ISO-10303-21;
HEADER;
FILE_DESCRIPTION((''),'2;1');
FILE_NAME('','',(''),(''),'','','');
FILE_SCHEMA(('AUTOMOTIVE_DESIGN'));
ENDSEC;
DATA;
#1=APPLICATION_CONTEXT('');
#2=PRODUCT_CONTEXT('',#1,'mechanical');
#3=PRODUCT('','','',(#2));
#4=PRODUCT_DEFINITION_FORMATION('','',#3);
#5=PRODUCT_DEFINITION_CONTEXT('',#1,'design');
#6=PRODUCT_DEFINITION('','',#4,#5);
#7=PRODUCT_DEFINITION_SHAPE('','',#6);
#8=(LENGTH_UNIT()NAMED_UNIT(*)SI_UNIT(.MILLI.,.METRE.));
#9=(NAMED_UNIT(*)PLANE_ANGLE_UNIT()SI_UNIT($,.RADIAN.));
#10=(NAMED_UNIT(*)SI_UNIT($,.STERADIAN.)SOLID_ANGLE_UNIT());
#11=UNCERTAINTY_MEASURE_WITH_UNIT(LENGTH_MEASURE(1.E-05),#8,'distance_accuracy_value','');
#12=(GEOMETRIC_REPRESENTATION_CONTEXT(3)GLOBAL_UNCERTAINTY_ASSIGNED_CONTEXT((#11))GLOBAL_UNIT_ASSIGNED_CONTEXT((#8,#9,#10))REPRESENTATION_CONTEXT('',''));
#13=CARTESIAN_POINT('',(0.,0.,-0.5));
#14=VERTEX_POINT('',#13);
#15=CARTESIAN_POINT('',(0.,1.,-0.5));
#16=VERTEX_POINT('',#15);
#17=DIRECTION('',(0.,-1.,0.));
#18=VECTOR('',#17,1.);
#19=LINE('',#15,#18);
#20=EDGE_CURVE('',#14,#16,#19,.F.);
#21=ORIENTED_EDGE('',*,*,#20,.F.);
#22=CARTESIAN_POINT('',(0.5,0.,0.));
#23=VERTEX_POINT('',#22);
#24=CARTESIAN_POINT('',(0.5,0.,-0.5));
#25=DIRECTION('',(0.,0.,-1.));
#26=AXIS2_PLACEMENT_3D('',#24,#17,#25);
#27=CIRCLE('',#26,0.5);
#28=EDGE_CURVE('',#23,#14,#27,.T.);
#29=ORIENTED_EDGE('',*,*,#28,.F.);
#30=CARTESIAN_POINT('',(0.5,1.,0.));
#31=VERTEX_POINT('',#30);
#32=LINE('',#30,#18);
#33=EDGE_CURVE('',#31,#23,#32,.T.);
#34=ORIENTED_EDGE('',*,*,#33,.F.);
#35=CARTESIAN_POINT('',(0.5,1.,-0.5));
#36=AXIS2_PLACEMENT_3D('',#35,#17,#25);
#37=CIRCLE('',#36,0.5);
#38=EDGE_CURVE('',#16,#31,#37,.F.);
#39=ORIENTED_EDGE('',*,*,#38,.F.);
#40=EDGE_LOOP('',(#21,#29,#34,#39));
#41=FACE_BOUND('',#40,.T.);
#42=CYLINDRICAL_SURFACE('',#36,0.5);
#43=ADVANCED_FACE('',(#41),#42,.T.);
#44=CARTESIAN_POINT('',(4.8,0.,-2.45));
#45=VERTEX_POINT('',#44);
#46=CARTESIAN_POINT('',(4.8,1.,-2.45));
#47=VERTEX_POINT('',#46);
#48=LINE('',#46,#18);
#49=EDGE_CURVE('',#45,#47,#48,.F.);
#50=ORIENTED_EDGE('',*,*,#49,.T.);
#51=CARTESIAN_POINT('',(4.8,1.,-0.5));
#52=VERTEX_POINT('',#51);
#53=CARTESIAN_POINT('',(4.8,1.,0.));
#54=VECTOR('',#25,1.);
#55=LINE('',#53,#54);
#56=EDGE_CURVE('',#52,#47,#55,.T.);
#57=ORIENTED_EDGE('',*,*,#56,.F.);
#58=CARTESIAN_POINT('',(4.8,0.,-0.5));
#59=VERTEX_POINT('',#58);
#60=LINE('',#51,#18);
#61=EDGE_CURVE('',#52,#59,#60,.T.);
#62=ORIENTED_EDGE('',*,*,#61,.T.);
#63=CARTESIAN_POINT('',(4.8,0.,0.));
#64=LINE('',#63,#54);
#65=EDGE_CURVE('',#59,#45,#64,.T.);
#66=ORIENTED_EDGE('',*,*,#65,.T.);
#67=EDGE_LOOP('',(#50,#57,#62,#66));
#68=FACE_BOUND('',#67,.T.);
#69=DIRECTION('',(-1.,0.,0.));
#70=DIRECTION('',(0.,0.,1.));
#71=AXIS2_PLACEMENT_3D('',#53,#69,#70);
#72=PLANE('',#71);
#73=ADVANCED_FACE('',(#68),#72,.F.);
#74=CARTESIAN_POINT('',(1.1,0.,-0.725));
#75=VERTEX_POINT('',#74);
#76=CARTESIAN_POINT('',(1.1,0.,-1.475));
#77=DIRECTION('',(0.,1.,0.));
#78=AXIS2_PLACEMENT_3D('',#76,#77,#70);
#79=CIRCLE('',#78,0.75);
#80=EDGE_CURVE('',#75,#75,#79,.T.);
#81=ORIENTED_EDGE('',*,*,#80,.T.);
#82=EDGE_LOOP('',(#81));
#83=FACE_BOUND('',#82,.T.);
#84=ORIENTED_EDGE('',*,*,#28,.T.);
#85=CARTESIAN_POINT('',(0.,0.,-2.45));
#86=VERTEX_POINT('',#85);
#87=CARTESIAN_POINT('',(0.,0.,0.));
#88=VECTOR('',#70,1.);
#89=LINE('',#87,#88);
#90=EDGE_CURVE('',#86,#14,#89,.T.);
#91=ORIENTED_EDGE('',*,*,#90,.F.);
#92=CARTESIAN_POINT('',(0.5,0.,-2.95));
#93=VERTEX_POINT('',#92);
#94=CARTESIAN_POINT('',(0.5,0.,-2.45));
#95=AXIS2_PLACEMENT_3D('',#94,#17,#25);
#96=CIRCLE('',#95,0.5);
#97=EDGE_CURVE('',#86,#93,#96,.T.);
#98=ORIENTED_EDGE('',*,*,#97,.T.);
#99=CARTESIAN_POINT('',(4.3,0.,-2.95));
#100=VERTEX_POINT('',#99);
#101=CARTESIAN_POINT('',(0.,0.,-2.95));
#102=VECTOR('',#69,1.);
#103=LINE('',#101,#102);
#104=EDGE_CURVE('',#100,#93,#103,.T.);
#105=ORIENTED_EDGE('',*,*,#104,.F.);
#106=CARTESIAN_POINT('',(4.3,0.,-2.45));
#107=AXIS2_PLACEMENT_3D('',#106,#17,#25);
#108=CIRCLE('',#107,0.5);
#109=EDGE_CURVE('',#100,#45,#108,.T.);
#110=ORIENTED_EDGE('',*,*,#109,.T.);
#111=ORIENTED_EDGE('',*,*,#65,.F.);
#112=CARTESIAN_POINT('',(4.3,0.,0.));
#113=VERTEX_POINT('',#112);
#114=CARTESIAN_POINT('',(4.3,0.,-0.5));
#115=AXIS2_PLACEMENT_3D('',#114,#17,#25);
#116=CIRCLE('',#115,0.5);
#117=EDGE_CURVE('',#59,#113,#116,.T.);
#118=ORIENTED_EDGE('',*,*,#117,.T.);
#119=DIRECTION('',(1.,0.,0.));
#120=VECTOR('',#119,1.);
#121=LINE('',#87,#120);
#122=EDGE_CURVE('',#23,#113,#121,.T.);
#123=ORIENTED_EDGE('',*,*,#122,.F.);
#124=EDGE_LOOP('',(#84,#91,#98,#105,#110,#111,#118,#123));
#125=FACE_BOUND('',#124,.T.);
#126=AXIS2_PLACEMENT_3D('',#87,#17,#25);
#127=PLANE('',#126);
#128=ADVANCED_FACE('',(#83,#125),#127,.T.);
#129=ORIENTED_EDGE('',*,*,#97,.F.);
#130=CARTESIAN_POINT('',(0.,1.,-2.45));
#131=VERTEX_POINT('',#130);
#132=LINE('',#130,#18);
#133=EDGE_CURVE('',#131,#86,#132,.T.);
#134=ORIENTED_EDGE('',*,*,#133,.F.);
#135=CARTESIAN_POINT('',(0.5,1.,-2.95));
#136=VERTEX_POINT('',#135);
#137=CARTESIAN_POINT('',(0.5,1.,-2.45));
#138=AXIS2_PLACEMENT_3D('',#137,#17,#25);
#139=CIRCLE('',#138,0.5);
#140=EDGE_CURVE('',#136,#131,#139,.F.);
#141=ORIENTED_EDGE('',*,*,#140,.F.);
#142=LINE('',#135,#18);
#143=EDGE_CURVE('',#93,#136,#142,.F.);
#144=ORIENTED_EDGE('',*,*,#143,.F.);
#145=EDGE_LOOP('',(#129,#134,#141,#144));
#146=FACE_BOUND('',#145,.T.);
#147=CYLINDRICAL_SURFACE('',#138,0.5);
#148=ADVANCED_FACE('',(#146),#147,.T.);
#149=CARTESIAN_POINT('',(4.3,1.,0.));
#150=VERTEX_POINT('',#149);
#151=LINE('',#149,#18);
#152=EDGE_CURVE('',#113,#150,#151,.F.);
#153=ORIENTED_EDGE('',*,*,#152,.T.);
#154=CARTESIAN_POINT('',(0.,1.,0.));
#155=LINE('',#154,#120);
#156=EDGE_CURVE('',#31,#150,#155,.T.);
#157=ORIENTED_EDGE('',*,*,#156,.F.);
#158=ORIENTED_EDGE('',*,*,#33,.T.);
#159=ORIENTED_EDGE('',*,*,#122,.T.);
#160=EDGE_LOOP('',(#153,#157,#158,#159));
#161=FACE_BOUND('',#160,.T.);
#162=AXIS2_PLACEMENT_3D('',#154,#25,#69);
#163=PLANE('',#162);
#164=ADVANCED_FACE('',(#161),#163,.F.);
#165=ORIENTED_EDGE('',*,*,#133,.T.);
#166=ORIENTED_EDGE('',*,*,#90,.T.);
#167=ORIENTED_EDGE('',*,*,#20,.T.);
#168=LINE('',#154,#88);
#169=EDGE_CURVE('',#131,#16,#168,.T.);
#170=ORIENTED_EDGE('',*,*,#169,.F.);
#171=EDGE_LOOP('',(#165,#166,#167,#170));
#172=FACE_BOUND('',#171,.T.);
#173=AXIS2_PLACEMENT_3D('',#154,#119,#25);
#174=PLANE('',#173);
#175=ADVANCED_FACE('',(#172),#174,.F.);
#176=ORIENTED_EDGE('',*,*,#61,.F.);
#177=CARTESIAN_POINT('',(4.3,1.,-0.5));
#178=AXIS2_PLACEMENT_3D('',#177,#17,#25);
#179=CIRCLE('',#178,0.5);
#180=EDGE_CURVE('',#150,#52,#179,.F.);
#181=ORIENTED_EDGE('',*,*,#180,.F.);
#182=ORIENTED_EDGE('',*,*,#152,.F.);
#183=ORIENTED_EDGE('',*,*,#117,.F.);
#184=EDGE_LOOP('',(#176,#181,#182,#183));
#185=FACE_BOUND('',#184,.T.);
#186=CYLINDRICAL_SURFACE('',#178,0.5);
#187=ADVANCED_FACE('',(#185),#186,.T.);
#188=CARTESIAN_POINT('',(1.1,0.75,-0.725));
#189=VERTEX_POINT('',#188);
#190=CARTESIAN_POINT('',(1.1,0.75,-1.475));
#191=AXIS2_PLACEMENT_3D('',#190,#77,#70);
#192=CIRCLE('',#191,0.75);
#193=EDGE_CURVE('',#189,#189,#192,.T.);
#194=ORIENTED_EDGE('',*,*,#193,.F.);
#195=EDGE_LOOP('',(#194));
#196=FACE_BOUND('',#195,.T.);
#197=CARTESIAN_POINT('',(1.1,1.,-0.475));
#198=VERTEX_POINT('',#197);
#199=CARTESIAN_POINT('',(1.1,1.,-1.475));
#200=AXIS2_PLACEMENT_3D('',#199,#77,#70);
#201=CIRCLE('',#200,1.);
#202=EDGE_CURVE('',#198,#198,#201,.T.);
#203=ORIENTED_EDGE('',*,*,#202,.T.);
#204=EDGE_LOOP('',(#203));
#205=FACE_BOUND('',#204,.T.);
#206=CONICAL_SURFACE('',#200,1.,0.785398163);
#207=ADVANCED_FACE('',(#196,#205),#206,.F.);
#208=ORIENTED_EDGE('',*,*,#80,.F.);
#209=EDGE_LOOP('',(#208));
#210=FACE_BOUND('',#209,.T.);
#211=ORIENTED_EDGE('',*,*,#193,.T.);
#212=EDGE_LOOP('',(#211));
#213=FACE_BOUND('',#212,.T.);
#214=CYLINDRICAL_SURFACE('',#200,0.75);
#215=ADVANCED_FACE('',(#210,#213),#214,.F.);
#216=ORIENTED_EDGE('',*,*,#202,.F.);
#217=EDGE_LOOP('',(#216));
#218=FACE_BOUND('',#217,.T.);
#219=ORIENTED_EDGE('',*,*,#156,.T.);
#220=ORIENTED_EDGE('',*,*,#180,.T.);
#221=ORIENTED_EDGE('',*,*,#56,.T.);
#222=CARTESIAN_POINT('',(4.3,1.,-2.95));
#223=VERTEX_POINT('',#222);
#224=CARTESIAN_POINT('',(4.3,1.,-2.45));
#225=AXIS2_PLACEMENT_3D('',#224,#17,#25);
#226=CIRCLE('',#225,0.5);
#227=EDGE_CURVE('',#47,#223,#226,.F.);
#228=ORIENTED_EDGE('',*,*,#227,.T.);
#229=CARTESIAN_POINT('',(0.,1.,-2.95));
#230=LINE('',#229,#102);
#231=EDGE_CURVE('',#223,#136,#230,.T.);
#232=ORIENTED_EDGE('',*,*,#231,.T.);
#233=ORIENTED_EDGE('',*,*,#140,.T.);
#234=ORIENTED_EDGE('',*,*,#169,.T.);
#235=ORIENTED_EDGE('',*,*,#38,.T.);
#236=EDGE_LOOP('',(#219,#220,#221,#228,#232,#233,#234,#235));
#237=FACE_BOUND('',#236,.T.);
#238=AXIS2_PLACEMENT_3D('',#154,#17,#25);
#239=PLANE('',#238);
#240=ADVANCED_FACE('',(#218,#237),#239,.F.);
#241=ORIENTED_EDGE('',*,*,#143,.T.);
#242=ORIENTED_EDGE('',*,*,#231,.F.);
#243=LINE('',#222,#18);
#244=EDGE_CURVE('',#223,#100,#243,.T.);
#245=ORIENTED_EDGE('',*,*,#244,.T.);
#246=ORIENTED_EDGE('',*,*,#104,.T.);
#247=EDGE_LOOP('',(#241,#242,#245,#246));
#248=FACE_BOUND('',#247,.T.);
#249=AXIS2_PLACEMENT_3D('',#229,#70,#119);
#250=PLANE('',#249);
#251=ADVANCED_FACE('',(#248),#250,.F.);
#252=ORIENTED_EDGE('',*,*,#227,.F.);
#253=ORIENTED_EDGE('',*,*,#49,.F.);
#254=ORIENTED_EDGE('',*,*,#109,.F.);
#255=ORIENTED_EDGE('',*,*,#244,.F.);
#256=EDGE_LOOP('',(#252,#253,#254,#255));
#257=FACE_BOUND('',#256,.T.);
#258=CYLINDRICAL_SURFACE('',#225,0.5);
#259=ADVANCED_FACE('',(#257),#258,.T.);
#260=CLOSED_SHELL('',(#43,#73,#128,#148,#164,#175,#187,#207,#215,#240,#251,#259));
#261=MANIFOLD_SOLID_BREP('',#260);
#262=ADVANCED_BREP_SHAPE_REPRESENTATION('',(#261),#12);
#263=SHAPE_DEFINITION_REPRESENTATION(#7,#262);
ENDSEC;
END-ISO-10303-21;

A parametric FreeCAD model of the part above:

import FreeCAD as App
import Part
import Sketcher
from FreeCAD import Vector
Q = App.Units.Quantity


def edges_at(feature, points):
    """Names of the edges that pass closest to the given points."""
    edges = feature.Shape.Edges
    near = lambda p: min(range(len(edges)), key=lambda i: edges[i].distToShape(Part.Vertex(*p))[0])
    return sorted({f"Edge{near(p) + 1}" for p in points})


def add_polygon(sketch, points):
    """Adds a closed chain of lines whose ends are joined by coincident constraints."""
    first, n = sketch.GeometryCount, len(points)
    for a, b in zip(points, points[1:] + points[:1]):
        sketch.addGeometry(Part.LineSegment(App.Vector(*a, 0), App.Vector(*b, 0)), False)
    for i in range(n):
        sketch.addConstraint(Sketcher.Constraint("Coincident", first + i, 2, first + (i + 1) % n, 1))

doc = App.newDocument("Part")
body = doc.addObject("PartDesign::Body", "Body")

sketch1 = doc.addObject("Sketcher::SketchObject", "Sketch")
body.addObject(sketch1)
sketch1.AttachmentSupport = (doc.XZ_Plane, [""])
sketch1.MapMode = "FlatFace"
add_polygon(sketch1, [(0, -3), (0, 0), (4.8, 0), (4.8, -3)])
sketch1.addConstraint([
    Sketcher.Constraint("Vertical", 0),
    Sketcher.Constraint("Horizontal", 1),
    Sketcher.Constraint("Vertical", 2),
    Sketcher.Constraint("Horizontal", 3),
    Sketcher.Constraint("Coincident", 0, 2, -1, 1),
    Sketcher.Constraint("DistanceX", 1, 1, 1, 2, Q("4.8 mm")),
    Sketcher.Constraint("DistanceY", 0, 1, 0, 2, Q("2.95 mm")),
])
pad1 = doc.addObject("PartDesign::Pad", "Pad")
body.addObject(pad1)
pad1.Profile = sketch1
pad1.Length = 1
pad1.Reversed = True

sketch2 = doc.addObject("Sketcher::SketchObject", "Sketch001")
body.addObject(sketch2)
sketch2.AttachmentSupport = (doc.XZ_Plane, [""])
sketch2.MapMode = "FlatFace"
sketch2.AttachmentOffset = App.Placement(Vector(0, 0, -1), App.Rotation())
sketch2.addGeometry(Part.Circle(Vector(1.1, -1.5, 0), Vector(0, 0, 1), 0.8), False)
sketch2.addConstraint([
    Sketcher.Constraint("Diameter", 0, Q("1.5 mm")),
    Sketcher.Constraint("DistanceX", -1, 1, 0, 3, Q("1.1 mm")),
    Sketcher.Constraint("DistanceY", 0, 3, -1, 1, Q("1.475 mm")),
])
doc.recompute()
hole = doc.addObject("PartDesign::Hole", "Hole")
body.addObject(hole)
hole.Profile = sketch2
hole.ThreadType = "None"
hole.Diameter = 1.5
hole.DepthType = "ThroughAll"
hole.HoleCutType = "Countersink"
hole.HoleCutDiameter = 2
hole.HoleCutCountersinkAngle = 90
hole.Reversed = True
doc.recompute()

fillet = doc.addObject("PartDesign::Fillet", "Fillet")
body.addObject(fillet)
fillet.Base = (hole, edges_at(hole, [
    (0, 0.5, -2.95),
    (4.8, 0.5, -2.95),
    (4.8, 0.5, 0),
    (0, 0.5, 0),
]))
fillet.Radius = 0.5

doc.recompute()
